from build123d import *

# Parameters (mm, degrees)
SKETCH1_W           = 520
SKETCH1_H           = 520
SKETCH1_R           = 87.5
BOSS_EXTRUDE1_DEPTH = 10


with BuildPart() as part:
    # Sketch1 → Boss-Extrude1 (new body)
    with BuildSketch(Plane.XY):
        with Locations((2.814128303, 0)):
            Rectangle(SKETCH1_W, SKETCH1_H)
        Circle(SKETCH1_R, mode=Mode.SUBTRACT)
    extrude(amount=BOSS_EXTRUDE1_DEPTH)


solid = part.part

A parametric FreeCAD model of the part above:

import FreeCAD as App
import Part
import Sketcher

V = App.Vector


def add_polygon(sketch, points):
    """Adds a closed chain of lines whose ends are joined by coincident constraints."""
    first, n = sketch.GeometryCount, len(points)
    for a, b in zip(points, points[1:] + points[:1]):
        sketch.addGeometry(Part.LineSegment(App.Vector(*a, 0), App.Vector(*b, 0)), False)
    for i in range(n):
        sketch.addConstraint(Sketcher.Constraint("Coincident", first + i, 2, first + (i + 1) % n, 1))

doc = App.newDocument("Part")
body = doc.addObject("PartDesign::Body", "Body")

# Sketch on XY plane
sketch1 = doc.addObject("Sketcher::SketchObject", "Sketch")
body.addObject(sketch1)
sketch1.AttachmentSupport = (doc.XY_Plane, [""])
sketch1.MapMode = "FlatFace"
add_polygon(sketch1, [(-257.185872, 260), (-257.185872, -260), (262.814128, -260), (262.814128, 260)])  # lines 0-3
sketch1.addGeometry(Part.Circle(V(0, 0, 0), V(0, 0, 1), 87.5), False)  # 4
sketch1.addConstraint([
    Sketcher.Constraint("Vertical", 0),
    Sketcher.Constraint("Horizontal", 1),
    Sketcher.Constraint("Vertical", 2),
    Sketcher.Constraint("Horizontal", 3),
    Sketcher.Constraint("Coincident", 4, 3, -1, 1),
    Sketcher.Constraint("Equal", 3, 0),
    Sketcher.Constraint("Diameter", 4, 175.0),
    Sketcher.Constraint("DistanceX", 1, 1, 1, 2, 520.0),
    Sketcher.Constraint("DistanceY", 0, 2, -1, 1, 260.0),
    Sketcher.Constraint("DistanceX", 0, 2, -1, 1, 257.185872),
])
pad1 = doc.addObject("PartDesign::Pad", "Pad")
body.addObject(pad1)
pad1.Profile = sketch1
pad1.Length = 10

doc.recompute()
